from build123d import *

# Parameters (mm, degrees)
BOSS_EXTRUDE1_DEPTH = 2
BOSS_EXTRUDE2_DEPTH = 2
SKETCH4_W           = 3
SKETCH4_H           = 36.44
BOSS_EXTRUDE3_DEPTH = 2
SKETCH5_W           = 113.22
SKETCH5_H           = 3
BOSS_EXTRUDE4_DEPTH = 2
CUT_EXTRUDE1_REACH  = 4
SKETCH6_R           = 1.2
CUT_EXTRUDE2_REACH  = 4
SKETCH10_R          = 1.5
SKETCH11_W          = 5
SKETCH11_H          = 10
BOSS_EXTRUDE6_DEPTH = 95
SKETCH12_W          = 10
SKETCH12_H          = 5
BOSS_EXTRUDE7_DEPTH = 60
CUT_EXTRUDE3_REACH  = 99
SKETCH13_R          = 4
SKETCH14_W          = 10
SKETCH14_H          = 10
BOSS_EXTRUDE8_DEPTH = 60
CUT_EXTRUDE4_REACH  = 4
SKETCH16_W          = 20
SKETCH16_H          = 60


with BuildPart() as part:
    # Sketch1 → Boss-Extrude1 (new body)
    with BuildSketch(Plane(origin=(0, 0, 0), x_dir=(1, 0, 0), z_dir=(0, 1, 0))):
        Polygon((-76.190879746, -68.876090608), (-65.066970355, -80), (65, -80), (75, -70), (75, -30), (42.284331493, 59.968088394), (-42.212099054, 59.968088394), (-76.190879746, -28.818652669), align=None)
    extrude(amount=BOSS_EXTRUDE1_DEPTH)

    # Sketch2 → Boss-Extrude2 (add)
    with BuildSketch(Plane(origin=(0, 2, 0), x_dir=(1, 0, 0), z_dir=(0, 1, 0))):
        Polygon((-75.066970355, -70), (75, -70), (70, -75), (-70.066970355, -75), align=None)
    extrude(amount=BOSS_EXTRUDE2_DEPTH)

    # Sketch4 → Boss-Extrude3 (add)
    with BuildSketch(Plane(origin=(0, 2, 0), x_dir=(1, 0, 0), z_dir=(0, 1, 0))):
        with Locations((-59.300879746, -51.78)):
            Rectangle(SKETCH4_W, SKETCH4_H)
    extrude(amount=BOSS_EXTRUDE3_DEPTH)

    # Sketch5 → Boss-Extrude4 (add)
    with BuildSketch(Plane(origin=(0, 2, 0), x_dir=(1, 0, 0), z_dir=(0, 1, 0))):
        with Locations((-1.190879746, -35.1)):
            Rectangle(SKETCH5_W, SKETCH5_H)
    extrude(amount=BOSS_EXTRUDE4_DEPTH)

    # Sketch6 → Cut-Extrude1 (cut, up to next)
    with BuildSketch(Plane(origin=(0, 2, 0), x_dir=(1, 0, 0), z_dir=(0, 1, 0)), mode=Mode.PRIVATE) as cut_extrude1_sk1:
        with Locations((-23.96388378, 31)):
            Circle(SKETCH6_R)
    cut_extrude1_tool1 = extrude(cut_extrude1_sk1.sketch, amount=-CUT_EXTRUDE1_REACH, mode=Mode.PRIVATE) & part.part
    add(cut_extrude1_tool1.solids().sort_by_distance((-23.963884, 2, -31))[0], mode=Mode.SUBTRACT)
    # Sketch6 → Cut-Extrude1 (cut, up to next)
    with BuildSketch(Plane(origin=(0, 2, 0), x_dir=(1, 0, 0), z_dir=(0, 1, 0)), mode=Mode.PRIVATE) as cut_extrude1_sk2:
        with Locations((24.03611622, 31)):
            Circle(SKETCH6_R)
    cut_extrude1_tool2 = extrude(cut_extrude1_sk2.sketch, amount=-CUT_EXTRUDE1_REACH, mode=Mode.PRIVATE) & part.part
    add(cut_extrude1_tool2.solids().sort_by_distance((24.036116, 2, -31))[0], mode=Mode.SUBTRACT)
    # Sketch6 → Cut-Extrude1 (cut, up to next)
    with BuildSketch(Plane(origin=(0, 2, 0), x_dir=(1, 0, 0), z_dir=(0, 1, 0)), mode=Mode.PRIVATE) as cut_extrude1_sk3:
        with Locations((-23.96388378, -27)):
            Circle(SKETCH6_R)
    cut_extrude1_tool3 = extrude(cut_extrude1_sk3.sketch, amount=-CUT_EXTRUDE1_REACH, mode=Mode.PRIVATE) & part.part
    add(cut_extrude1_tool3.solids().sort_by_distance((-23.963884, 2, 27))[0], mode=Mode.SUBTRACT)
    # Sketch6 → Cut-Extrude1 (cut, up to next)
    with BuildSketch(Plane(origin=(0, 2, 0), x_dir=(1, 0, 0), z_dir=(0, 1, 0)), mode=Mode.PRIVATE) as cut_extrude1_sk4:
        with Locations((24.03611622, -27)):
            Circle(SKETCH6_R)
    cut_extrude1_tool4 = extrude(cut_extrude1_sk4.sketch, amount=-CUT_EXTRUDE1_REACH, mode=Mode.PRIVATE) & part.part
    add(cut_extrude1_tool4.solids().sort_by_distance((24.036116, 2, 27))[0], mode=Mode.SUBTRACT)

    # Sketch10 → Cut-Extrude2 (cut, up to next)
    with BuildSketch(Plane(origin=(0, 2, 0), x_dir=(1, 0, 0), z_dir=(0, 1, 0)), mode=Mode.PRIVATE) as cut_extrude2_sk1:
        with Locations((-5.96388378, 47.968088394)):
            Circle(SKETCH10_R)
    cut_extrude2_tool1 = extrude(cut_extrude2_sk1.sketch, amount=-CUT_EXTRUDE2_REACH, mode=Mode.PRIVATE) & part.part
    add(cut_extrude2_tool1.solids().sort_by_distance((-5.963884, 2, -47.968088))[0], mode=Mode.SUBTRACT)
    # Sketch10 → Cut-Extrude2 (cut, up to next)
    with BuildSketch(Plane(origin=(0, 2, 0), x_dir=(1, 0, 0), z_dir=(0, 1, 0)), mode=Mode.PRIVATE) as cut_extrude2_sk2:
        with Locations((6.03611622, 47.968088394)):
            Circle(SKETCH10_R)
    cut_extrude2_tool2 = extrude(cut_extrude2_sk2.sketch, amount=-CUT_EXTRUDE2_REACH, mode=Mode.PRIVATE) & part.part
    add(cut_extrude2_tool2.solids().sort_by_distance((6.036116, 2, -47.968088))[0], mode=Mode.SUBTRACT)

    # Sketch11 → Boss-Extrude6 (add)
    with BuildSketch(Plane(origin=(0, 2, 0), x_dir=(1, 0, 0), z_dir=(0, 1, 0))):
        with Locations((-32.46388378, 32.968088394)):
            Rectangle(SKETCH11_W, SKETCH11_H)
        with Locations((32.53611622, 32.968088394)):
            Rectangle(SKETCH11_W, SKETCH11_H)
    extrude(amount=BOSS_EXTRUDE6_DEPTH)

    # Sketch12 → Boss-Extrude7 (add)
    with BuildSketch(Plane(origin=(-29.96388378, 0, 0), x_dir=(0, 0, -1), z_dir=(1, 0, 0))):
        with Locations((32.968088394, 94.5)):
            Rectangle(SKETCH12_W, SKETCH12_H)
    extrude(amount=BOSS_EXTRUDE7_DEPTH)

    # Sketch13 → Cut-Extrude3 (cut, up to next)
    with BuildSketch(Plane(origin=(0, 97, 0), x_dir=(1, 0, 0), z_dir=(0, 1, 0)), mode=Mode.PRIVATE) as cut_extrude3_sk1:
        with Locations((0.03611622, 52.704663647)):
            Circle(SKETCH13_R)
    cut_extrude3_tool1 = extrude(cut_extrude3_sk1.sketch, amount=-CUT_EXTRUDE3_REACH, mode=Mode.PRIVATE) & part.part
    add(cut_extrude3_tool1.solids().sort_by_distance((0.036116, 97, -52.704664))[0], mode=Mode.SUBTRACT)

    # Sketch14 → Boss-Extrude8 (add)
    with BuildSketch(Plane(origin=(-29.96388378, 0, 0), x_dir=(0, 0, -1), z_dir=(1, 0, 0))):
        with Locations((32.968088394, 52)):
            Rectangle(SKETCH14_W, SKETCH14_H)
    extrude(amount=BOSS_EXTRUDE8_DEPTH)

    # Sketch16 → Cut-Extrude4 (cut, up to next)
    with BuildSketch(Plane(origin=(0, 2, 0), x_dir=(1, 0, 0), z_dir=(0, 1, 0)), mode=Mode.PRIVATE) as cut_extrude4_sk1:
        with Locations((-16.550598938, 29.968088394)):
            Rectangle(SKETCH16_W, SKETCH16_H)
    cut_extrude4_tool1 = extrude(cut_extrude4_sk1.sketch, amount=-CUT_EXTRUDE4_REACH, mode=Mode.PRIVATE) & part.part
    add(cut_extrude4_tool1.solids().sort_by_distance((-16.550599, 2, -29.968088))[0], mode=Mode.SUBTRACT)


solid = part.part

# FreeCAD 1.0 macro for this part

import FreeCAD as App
import Part
import Sketcher
from FreeCAD import Vector
Q = App.Units.Quantity


def add_polygon(sketch, points):
    """Adds a closed chain of lines whose ends are joined by coincident constraints."""
    first, n = sketch.GeometryCount, len(points)
    for a, b in zip(points, points[1:] + points[:1]):
        sketch.addGeometry(Part.LineSegment(App.Vector(*a, 0), App.Vector(*b, 0)), False)
    for i in range(n):
        sketch.addConstraint(Sketcher.Constraint("Coincident", first + i, 2, first + (i + 1) % n, 1))

doc = App.newDocument("Part")
body = doc.addObject("PartDesign::Body", "Body")

sketch1 = doc.addObject("Sketcher::SketchObject", "Sketch")
body.addObject(sketch1)
sketch1.AttachmentSupport = (doc.XZ_Plane, [""])
sketch1.MapMode = "FlatFace"
add_polygon(sketch1, [(-76.19088, 68.876091), (-65.06697, 80), (65, 80), (75, 70), (75, 30), (42.284331, -59.968088), (-42.212099, -59.968088), (-76.19088, 28.818653)])
sketch1.addConstraint([
    Sketcher.Constraint("Horizontal", 1),
    Sketcher.Constraint("Vertical", 3),
    Sketcher.Constraint("Horizontal", 5),
    Sketcher.Constraint("Vertical", 7),
    Sketcher.Constraint("Perpendicular", 0, 2),
    Sketcher.Constraint("DistanceY", 3, 2, 3, 1, Q("40 mm")),
    Sketcher.Constraint("Angle", 0, Q("45 deg")),
    Sketcher.Constraint("DistanceY", -1, 1, 0, 2, Q("80 mm")),
    Sketcher.Constraint("DistanceX", -1, 1, 1, 2, Q("65 mm")),
    Sketcher.Constraint("DistanceX", -1, 1, 2, 2, Q("75 mm")),
    Sketcher.Constraint("DistanceX", 1, 1, 1, 2, Q("130.06697 mm")),
    Sketcher.Constraint("DistanceX", 5, 2, 5, 1, Q("84.496431 mm")),
    Sketcher.Constraint("DistanceX", 5, 2, -1, 1, Q("42.212099 mm")),
    Sketcher.Constraint("Distance", 4, Q("95.731771 mm")),
    Sketcher.Constraint("Distance", 6, Q("95.066518 mm")),
    Sketcher.Constraint("DistanceY", 7, 1, 7, 2, Q("40.057438 mm")),
])
pad1 = doc.addObject("PartDesign::Pad", "Pad")
body.addObject(pad1)
pad1.Profile = sketch1
pad1.Length = 2
pad1.Reversed = True

sketch2 = doc.addObject("Sketcher::SketchObject", "Sketch001")
body.addObject(sketch2)
sketch2.AttachmentSupport = (doc.XZ_Plane, [""])
sketch2.MapMode = "FlatFace"
sketch2.AttachmentOffset = App.Placement(Vector(0, 0, -2), App.Rotation())
add_polygon(sketch2, [(75, 70), (-75.06697, 70), (-70.06697, 75), (70, 75)])
sketch2.addConstraint([
    Sketcher.Constraint("Horizontal", 0),
    Sketcher.Constraint("Horizontal", 2),
    Sketcher.Constraint("Perpendicular", 1, 3),
    Sketcher.Constraint("Equal", 1, 3),
    Sketcher.Constraint("DistanceY", -1, 1, 0, 2, Q("70 mm")),
    Sketcher.Constraint("DistanceY", -1, 1, 1, 2, Q("75 mm")),
    Sketcher.Constraint("DistanceX", -1, 1, 2, 2, Q("70 mm")),
    Sketcher.Constraint("DistanceX", 0, 2, 0, 1, Q("150.06697 mm")),
])
pad2 = doc.addObject("PartDesign::Pad", "Pad001")
body.addObject(pad2)
pad2.Profile = sketch2
pad2.Length = 2
pad2.Reversed = True

sketch3 = doc.addObject("Sketcher::SketchObject", "Sketch002")
body.addObject(sketch3)
sketch3.AttachmentSupport = (doc.XZ_Plane, [""])
sketch3.MapMode = "FlatFace"
sketch3.AttachmentOffset = App.Placement(Vector(0, 0, -2), App.Rotation())
add_polygon(sketch3, [(-60.80088, 33.56), (-60.80088, 70), (-57.80088, 70), (-57.80088, 33.56)])
sketch3.addConstraint([
    Sketcher.Constraint("Vertical", 0),
    Sketcher.Constraint("Horizontal", 1),
    Sketcher.Constraint("Vertical", 2),
    Sketcher.Constraint("Horizontal", 3),
    Sketcher.Constraint("DistanceX", 1, 1, 1, 2, Q("3 mm")),
    Sketcher.Constraint("DistanceY", -1, 1, 0, 2, Q("70 mm")),
    Sketcher.Constraint("DistanceY", 0, 1, 0, 2, Q("36.44 mm")),
    Sketcher.Constraint("DistanceX", 0, 2, -1, 1, Q("60.80088 mm")),
])
pad3 = doc.addObject("PartDesign::Pad", "Pad002")
body.addObject(pad3)
pad3.Profile = sketch3
pad3.Length = 2
pad3.Reversed = True

sketch4 = doc.addObject("Sketcher::SketchObject", "Sketch003")
body.addObject(sketch4)
sketch4.AttachmentSupport = (doc.XZ_Plane, [""])
sketch4.MapMode = "FlatFace"
sketch4.AttachmentOffset = App.Placement(Vector(0, 0, -2), App.Rotation())
add_polygon(sketch4, [(-57.80088, 33.6), (-57.80088, 36.6), (55.41912, 36.6), (55.41912, 33.6)])
sketch4.addConstraint([
    Sketcher.Constraint("Vertical", 0),
    Sketcher.Constraint("Horizontal", 1),
    Sketcher.Constraint("Vertical", 2),
    Sketcher.Constraint("Horizontal", 3),
    Sketcher.Constraint("DistanceY", 0, 1, 0, 2, Q("3 mm")),
    Sketcher.Constraint("DistanceX", 1, 1, 1, 2, Q("113.22 mm")),
    Sketcher.Constraint("DistanceY", -1, 1, 0, 2, Q("36.6 mm")),
    Sketcher.Constraint("DistanceX", 0, 2, -1, 1, Q("57.80088 mm")),
])
pad4 = doc.addObject("PartDesign::Pad", "Pad003")
body.addObject(pad4)
pad4.Profile = sketch4
pad4.Length = 2
pad4.Reversed = True

sketch5 = doc.addObject("Sketcher::SketchObject", "Sketch004")
body.addObject(sketch5)
sketch5.AttachmentSupport = (doc.XZ_Plane, [""])
sketch5.MapMode = "FlatFace"
sketch5.AttachmentOffset = App.Placement(Vector(0, 0, -2), App.Rotation())
sketch5.addGeometry(Part.Circle(Vector(-23.963884, -31, 0), Vector(0, 0, 1), 1.2), False)
sketch5.addConstraint([
    Sketcher.Constraint("Diameter", 0, Q("2.4 mm")),
    Sketcher.Constraint("DistanceY", 0, 3, -1, 1, Q("31 mm")),
    Sketcher.Constraint("DistanceX", 0, 3, -1, 1, Q("23.963884 mm")),
])
pocket1 = doc.addObject("PartDesign::Pocket", "Pocket")
body.addObject(pocket1)
pocket1.Profile = sketch5
pocket1.Type = "UpToFirst"
pocket1.Reversed = True

sketch6 = doc.addObject("Sketcher::SketchObject", "Sketch005")
body.addObject(sketch6)
sketch6.AttachmentSupport = (doc.XZ_Plane, [""])
sketch6.MapMode = "FlatFace"
sketch6.AttachmentOffset = App.Placement(Vector(0, 0, -2), App.Rotation())
sketch6.addGeometry(Part.Circle(Vector(24.036116, -31, 0), Vector(0, 0, 1), 1.2), False)
sketch6.addConstraint([
    Sketcher.Constraint("Diameter", 0, Q("2.4 mm")),
    Sketcher.Constraint("DistanceY", 0, 3, -1, 1, Q("31 mm")),
    Sketcher.Constraint("DistanceX", -1, 1, 0, 3, Q("24.036116 mm")),
])
pocket2 = doc.addObject("PartDesign::Pocket", "Pocket001")
body.addObject(pocket2)
pocket2.Profile = sketch6
pocket2.Type = "UpToFirst"
pocket2.Reversed = True

sketch7 = doc.addObject("Sketcher::SketchObject", "Sketch006")
body.addObject(sketch7)
sketch7.AttachmentSupport = (doc.XZ_Plane, [""])
sketch7.MapMode = "FlatFace"
sketch7.AttachmentOffset = App.Placement(Vector(0, 0, -2), App.Rotation())
sketch7.addGeometry(Part.Circle(Vector(-23.963884, 27, 0), Vector(0, 0, 1), 1.2), False)
sketch7.addConstraint([
    Sketcher.Constraint("Diameter", 0, Q("2.4 mm")),
    Sketcher.Constraint("DistanceY", -1, 1, 0, 3, Q("27 mm")),
    Sketcher.Constraint("DistanceX", 0, 3, -1, 1, Q("23.963884 mm")),
])
pocket3 = doc.addObject("PartDesign::Pocket", "Pocket002")
body.addObject(pocket3)
pocket3.Profile = sketch7
pocket3.Type = "UpToFirst"
pocket3.Reversed = True

sketch8 = doc.addObject("Sketcher::SketchObject", "Sketch007")
body.addObject(sketch8)
sketch8.AttachmentSupport = (doc.XZ_Plane, [""])
sketch8.MapMode = "FlatFace"
sketch8.AttachmentOffset = App.Placement(Vector(0, 0, -2), App.Rotation())
sketch8.addGeometry(Part.Circle(Vector(24.036116, 27, 0), Vector(0, 0, 1), 1.2), False)
sketch8.addConstraint([
    Sketcher.Constraint("Diameter", 0, Q("2.4 mm")),
    Sketcher.Constraint("DistanceY", -1, 1, 0, 3, Q("27 mm")),
    Sketcher.Constraint("DistanceX", -1, 1, 0, 3, Q("24.036116 mm")),
])
pocket4 = doc.addObject("PartDesign::Pocket", "Pocket003")
body.addObject(pocket4)
pocket4.Profile = sketch8
pocket4.Type = "UpToFirst"
pocket4.Reversed = True

sketch9 = doc.addObject("Sketcher::SketchObject", "Sketch008")
body.addObject(sketch9)
sketch9.AttachmentSupport = (doc.XZ_Plane, [""])
sketch9.MapMode = "FlatFace"
sketch9.AttachmentOffset = App.Placement(Vector(0, 0, -2), App.Rotation())
sketch9.addGeometry(Part.Circle(Vector(-5.963884, -47.968088, 0), Vector(0, 0, 1), 1.5), False)
sketch9.addConstraint([
    Sketcher.Constraint("Diameter", 0, Q("3 mm")),
    Sketcher.Constraint("DistanceY", 0, 3, -1, 1, Q("47.968088 mm")),
    Sketcher.Constraint("DistanceX", 0, 3, -1, 1, Q("5.963884 mm")),
])
pocket5 = doc.addObject("PartDesign::Pocket", "Pocket004")
body.addObject(pocket5)
pocket5.Profile = sketch9
pocket5.Type = "UpToFirst"
pocket5.Reversed = True

sketch10 = doc.addObject("Sketcher::SketchObject", "Sketch009")
body.addObject(sketch10)
sketch10.AttachmentSupport = (doc.XZ_Plane, [""])
sketch10.MapMode = "FlatFace"
sketch10.AttachmentOffset = App.Placement(Vector(0, 0, -2), App.Rotation())
sketch10.addGeometry(Part.Circle(Vector(6.036116, -47.968088, 0), Vector(0, 0, 1), 1.5), False)
sketch10.addConstraint([
    Sketcher.Constraint("Diameter", 0, Q("3 mm")),
    Sketcher.Constraint("DistanceY", 0, 3, -1, 1, Q("47.968088 mm")),
    Sketcher.Constraint("DistanceX", -1, 1, 0, 3, Q("6.036116 mm")),
])
pocket6 = doc.addObject("PartDesign::Pocket", "Pocket005")
body.addObject(pocket6)
pocket6.Profile = sketch10
pocket6.Type = "UpToFirst"
pocket6.Reversed = True

sketch11 = doc.addObject("Sketcher::SketchObject", "Sketch010")
body.addObject(sketch11)
sketch11.AttachmentSupport = (doc.XZ_Plane, [""])
sketch11.MapMode = "FlatFace"
sketch11.AttachmentOffset = App.Placement(Vector(0, 0, -2), App.Rotation())
add_polygon(sketch11, [(-34.963884, -37.968088), (-34.963884, -27.968088), (-29.963884, -27.968088), (-29.963884, -37.968088)])
add_polygon(sketch11, [(30.036116, -37.968088), (30.036116, -27.968088), (35.036116, -27.968088), (35.036116, -37.968088)])
sketch11.addConstraint([
    Sketcher.Constraint("Vertical", 0),
    Sketcher.Constraint("Horizontal", 1),
    Sketcher.Constraint("Vertical", 2),
    Sketcher.Constraint("Horizontal", 3),
    Sketcher.Constraint("Vertical", 4),
    Sketcher.Constraint("Horizontal", 5),
    Sketcher.Constraint("Vertical", 6),
    Sketcher.Constraint("Horizontal", 7),
    Sketcher.Constraint("Horizontal", 1, 2, 4, 2),
    Sketcher.Constraint("Horizontal", 3, 2, 6, 2),
    Sketcher.Constraint("Equal", 3, 5),
    Sketcher.Constraint("DistanceX", 1, 1, 1, 2, Q("5 mm")),
    Sketcher.Constraint("DistanceY", 0, 1, 0, 2, Q("10 mm")),
    Sketcher.Constraint("DistanceX", 1, 2, 4, 2, Q("60 mm")),
    Sketcher.Constraint("DistanceY", 0, 2, -1, 1, Q("27.968088 mm")),
    Sketcher.Constraint("DistanceX", 0, 2, -1, 1, Q("34.963884 mm")),
])
pad5 = doc.addObject("PartDesign::Pad", "Pad004")
body.addObject(pad5)
pad5.Profile = sketch11
pad5.Length = 95
pad5.Reversed = True

sketch12 = doc.addObject("Sketcher::SketchObject", "Sketch011")
body.addObject(sketch12)
sketch12.AttachmentSupport = (doc.YZ_Plane, [""])
sketch12.MapMode = "FlatFace"
sketch12.AttachmentOffset = App.Placement(Vector(0, 0, -29.963884), App.Rotation())
add_polygon(sketch12, [(97, -27.968088), (92, -27.968088), (92, -37.968088), (97, -37.968088)])
sketch12.addConstraint([
    Sketcher.Constraint("Horizontal", 0),
    Sketcher.Constraint("Vertical", 1),
    Sketcher.Constraint("Horizontal", 2),
    Sketcher.Constraint("Vertical", 3),
    Sketcher.Constraint("DistanceX", 0, 2, 0, 1, Q("5 mm")),
    Sketcher.Constraint("DistanceY", 1, 2, 1, 1, Q("10 mm")),
    Sketcher.Constraint("DistanceX", -1, 1, 0, 2, Q("92 mm")),
    Sketcher.Constraint("DistanceY", 0, 2, -1, 1, Q("27.968088 mm")),
])
pad6 = doc.addObject("PartDesign::Pad", "Pad005")
body.addObject(pad6)
pad6.Profile = sketch12
pad6.Length = 60

sketch13 = doc.addObject("Sketcher::SketchObject", "Sketch012")
body.addObject(sketch13)
sketch13.AttachmentSupport = (doc.XZ_Plane, [""])
sketch13.MapMode = "FlatFace"
sketch13.AttachmentOffset = App.Placement(Vector(0, 0, -97), App.Rotation())
sketch13.addGeometry(Part.Circle(Vector(0.036116, -52.704664, 0), Vector(0, 0, 1), 4), False)
sketch13.addConstraint([
    Sketcher.Constraint("Diameter", 0, Q("8 mm")),
    Sketcher.Constraint("DistanceX", -1, 1, 0, 3, Q("0.036116 mm")),
    Sketcher.Constraint("DistanceY", 0, 3, -1, 1, Q("52.704664 mm")),
])
pocket7 = doc.addObject("PartDesign::Pocket", "Pocket006")
body.addObject(pocket7)
pocket7.Profile = sketch13
pocket7.Length = 97
pocket7.Reversed = True

sketch14 = doc.addObject("Sketcher::SketchObject", "Sketch013")
body.addObject(sketch14)
sketch14.AttachmentSupport = (doc.YZ_Plane, [""])
sketch14.MapMode = "FlatFace"
sketch14.AttachmentOffset = App.Placement(Vector(0, 0, -29.963884), App.Rotation())
add_polygon(sketch14, [(57, -27.968088), (47, -27.968088), (47, -37.968088), (57, -37.968088)])
sketch14.addConstraint([
    Sketcher.Constraint("Horizontal", 0),
    Sketcher.Constraint("Vertical", 1),
    Sketcher.Constraint("Horizontal", 2),
    Sketcher.Constraint("Vertical", 3),
    Sketcher.Constraint("Equal", 2, 1),
    Sketcher.Constraint("DistanceX", 0, 2, 0, 1, Q("10 mm")),
    Sketcher.Constraint("DistanceX", -1, 1, 0, 2, Q("47 mm")),
    Sketcher.Constraint("DistanceY", 0, 2, -1, 1, Q("27.968088 mm")),
])
pad7 = doc.addObject("PartDesign::Pad", "Pad006")
body.addObject(pad7)
pad7.Profile = sketch14
pad7.Length = 60

sketch15 = doc.addObject("Sketcher::SketchObject", "Sketch014")
body.addObject(sketch15)
sketch15.AttachmentSupport = (doc.XZ_Plane, [""])
sketch15.MapMode = "FlatFace"
sketch15.AttachmentOffset = App.Placement(Vector(0, 0, -2), App.Rotation())
add_polygon(sketch15, [(-26.550599, -59.968088), (-26.550599, 0.031912), (-6.550599, 0.031912), (-6.550599, -59.968088)])
sketch15.addConstraint([
    Sketcher.Constraint("Vertical", 0),
    Sketcher.Constraint("Horizontal", 1),
    Sketcher.Constraint("Vertical", 2),
    Sketcher.Constraint("Horizontal", 3),
    Sketcher.Constraint("DistanceX", 1, 1, 1, 2, Q("20 mm")),
    Sketcher.Constraint("DistanceY", 0, 1, 0, 2, Q("60 mm")),
    Sketcher.Constraint("DistanceX", 0, 2, -1, 1, Q("26.550599 mm")),
    Sketcher.Constraint("DistanceY", -1, 1, 0, 2, Q("0.031912 mm")),
])
pocket8 = doc.addObject("PartDesign::Pocket", "Pocket007")
body.addObject(pocket8)
pocket8.Profile = sketch15
pocket8.Type = "UpToFirst"
pocket8.Reversed = True

doc.recompute()
